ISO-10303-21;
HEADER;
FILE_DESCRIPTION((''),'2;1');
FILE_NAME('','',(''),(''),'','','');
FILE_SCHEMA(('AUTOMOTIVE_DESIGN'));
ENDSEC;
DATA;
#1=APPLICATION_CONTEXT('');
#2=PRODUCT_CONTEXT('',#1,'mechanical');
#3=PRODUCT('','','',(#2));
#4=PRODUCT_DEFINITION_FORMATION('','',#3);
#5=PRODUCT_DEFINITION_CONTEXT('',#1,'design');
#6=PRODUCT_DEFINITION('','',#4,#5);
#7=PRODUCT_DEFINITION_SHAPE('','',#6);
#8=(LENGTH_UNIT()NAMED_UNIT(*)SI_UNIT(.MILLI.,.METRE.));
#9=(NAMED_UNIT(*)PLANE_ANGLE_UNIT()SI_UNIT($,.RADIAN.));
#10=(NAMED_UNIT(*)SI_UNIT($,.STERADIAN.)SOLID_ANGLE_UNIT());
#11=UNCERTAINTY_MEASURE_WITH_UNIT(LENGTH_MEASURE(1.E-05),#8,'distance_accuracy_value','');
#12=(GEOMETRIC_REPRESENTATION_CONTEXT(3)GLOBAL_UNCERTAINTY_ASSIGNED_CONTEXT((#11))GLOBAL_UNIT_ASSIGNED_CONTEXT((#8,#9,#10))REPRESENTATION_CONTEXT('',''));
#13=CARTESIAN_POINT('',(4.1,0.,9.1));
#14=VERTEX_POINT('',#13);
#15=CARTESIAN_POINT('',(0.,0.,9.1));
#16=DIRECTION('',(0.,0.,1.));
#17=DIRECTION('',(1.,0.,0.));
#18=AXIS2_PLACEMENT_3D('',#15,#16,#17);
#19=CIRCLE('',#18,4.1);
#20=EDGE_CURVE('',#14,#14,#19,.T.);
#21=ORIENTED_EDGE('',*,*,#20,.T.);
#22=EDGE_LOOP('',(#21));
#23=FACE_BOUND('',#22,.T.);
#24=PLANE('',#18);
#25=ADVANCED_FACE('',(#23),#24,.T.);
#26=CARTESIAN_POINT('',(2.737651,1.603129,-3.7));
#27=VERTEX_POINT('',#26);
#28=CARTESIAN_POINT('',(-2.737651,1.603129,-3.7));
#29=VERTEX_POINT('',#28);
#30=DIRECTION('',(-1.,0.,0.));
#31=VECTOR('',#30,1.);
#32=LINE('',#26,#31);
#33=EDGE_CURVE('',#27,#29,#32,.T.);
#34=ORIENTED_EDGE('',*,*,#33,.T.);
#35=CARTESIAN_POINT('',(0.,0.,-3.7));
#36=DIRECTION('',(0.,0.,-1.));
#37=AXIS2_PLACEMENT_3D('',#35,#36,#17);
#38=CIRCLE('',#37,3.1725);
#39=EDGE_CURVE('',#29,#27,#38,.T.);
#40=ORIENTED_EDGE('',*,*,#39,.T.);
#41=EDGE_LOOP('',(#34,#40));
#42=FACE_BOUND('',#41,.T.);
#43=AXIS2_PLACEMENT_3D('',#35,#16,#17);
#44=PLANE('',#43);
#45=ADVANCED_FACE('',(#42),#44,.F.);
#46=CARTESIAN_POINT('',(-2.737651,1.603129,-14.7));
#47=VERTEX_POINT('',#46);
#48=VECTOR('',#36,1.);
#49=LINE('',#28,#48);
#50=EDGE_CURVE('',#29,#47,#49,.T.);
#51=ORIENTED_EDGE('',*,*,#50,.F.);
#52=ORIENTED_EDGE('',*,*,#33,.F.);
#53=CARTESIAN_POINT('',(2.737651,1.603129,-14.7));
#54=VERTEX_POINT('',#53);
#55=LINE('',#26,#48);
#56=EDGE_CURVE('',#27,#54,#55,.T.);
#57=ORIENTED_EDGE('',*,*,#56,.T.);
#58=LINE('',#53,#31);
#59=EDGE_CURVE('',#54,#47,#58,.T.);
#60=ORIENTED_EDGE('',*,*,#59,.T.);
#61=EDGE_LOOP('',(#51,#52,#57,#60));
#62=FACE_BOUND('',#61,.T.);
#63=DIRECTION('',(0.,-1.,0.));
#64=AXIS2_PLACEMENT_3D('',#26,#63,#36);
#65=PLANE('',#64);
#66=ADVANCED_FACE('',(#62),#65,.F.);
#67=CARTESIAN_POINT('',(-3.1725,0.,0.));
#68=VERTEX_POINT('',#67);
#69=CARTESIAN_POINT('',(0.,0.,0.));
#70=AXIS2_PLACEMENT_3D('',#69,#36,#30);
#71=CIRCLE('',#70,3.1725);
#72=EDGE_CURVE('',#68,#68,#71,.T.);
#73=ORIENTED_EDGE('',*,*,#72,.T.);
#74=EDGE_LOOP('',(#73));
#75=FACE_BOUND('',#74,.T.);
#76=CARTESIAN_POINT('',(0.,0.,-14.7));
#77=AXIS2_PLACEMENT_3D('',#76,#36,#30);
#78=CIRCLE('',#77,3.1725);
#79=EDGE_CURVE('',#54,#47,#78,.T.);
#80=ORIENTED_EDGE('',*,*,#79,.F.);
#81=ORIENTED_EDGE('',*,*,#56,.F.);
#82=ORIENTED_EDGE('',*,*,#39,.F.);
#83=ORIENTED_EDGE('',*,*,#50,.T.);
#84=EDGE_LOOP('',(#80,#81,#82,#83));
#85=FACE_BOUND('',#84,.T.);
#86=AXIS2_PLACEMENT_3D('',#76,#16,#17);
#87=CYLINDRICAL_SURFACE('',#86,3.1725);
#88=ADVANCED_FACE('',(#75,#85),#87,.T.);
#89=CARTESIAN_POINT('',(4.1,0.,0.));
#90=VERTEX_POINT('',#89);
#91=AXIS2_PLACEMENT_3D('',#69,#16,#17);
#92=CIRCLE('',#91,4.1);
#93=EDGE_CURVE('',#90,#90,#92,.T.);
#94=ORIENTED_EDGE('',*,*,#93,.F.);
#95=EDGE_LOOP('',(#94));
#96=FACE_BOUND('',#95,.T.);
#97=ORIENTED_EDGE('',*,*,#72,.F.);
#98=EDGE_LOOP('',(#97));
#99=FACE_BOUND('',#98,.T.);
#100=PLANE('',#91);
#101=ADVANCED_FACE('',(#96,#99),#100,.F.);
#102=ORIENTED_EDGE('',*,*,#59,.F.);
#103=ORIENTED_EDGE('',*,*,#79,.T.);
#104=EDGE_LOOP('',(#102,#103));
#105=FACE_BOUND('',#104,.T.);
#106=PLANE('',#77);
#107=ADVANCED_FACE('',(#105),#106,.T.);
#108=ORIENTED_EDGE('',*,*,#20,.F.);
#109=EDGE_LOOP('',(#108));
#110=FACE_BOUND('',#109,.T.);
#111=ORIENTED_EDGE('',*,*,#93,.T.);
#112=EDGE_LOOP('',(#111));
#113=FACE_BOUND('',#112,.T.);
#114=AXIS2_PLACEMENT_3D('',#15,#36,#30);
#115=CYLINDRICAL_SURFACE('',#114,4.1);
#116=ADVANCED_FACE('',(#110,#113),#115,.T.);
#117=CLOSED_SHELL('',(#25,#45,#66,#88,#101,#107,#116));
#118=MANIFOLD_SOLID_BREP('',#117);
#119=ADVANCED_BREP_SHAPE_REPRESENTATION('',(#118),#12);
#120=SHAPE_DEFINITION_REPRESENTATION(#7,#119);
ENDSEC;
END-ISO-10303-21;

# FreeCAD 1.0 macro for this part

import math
import FreeCAD as App
import Part
import Sketcher
from FreeCAD import Vector
Q = App.Units.Quantity

doc = App.newDocument("Part")
body = doc.addObject("PartDesign::Body", "Body")

sketch1 = body.newObject("Sketcher::SketchObject", "Sketch")
sketch1.AttachmentSupport = (doc.getObject("XY_Plane"), [""])
sketch1.MapMode = "FlatFace"
sketch1.addGeometry(Part.Circle(Vector(0, 0, 0), Vector(0, 0, 1), 4.1), False)
sketch1.addConstraint([
    Sketcher.Constraint("Coincident", 0, 3, -1, 1),
    Sketcher.Constraint("Diameter", 0, Q("8.2 mm")),
])
pad1 = body.newObject("PartDesign::Pad", "Pad")
pad1.Profile = sketch1
pad1.Length = 9.1

sketch2 = body.newObject("Sketcher::SketchObject", "Sketch001")
sketch2.AttachmentSupport = (doc.getObject("XY_Plane"), [""])
sketch2.MapMode = "FlatFace"
sketch2.addGeometry(Part.Circle(Vector(0, 0, 0), Vector(0, 0, 1), 3.2), False)
sketch2.addConstraint([
    Sketcher.Constraint("Coincident", 0, 3, -1, 1),
    Sketcher.Constraint("Diameter", 0, Q("6.345 mm")),
])
pad2 = body.newObject("PartDesign::Pad", "Pad001")
pad2.Profile = sketch2
pad2.Length = 14.7
pad2.Reversed = True

sketch3 = body.newObject("Sketcher::SketchObject", "Sketch002")
sketch3.AttachmentSupport = (doc.getObject("XY_Plane"), [""])
sketch3.MapMode = "FlatFace"
sketch3.AttachmentOffset = App.Placement(Vector(0, 0, -3.7), App.Rotation())
sketch3.addGeometry([
    Part.LineSegment(Vector(2.7, 1.6, 0), Vector(-2.7, 1.6, 0)),
    Part.ArcOfCircle(Part.Circle(Vector(0, 0, 0), Vector(0, 0, 1), 3.2), math.radians(30), math.radians(150)),
], False)
sketch3.addConstraint([
    Sketcher.Constraint("Coincident", 0, 1, 1, 1),
    Sketcher.Constraint("Coincident", 1, 2, 0, 2),
    Sketcher.Constraint("Horizontal", 0),
    Sketcher.Constraint("Coincident", 1, 3, -1, 1),
    Sketcher.Constraint("Radius", 1, Q("3.1725 mm")),
    Sketcher.Constraint("DistanceX", 0, 2, 0, 1, Q("5.475302 mm")),
])
pocket1 = body.newObject("PartDesign::Pocket", "Pocket")
pocket1.Profile = sketch3
pocket1.Length = 11

doc.recompute()
